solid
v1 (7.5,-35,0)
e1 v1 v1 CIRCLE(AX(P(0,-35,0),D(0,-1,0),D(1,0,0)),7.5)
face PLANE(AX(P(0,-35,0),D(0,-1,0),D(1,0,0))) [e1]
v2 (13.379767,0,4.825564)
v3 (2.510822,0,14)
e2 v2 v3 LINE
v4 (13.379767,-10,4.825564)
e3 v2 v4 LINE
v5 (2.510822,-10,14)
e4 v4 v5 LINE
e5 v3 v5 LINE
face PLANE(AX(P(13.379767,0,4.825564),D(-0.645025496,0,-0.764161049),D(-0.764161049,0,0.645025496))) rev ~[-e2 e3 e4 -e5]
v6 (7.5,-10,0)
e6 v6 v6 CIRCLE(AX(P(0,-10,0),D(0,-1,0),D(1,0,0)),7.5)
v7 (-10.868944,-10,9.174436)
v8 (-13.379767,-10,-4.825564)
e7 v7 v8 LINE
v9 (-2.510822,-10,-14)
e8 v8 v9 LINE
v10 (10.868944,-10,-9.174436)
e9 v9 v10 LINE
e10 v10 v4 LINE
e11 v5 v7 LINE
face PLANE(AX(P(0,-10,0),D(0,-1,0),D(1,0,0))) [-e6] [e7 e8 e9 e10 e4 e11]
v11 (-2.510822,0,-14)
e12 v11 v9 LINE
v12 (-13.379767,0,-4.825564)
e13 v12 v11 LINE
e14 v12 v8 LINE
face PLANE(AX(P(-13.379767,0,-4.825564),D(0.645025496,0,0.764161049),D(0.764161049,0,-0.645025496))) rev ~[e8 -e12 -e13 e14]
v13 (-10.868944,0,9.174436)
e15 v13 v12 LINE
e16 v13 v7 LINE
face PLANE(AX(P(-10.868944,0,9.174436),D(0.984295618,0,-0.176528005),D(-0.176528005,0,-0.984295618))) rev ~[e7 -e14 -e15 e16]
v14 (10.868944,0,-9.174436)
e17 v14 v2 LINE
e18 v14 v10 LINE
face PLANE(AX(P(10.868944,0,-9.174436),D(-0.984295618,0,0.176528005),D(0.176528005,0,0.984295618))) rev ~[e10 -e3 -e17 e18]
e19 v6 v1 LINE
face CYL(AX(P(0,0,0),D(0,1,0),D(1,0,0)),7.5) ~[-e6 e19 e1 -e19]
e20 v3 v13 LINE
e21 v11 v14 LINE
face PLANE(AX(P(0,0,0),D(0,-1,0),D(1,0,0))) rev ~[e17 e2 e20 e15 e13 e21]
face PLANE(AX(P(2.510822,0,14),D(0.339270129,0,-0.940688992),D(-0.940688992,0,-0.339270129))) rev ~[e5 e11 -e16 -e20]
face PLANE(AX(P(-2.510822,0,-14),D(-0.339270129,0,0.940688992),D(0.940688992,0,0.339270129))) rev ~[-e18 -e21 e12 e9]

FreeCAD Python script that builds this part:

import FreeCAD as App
import Part
import Sketcher

V = App.Vector

doc = App.newDocument("Part")
body = doc.addObject("PartDesign::Body", "Body")

sketch1 = body.newObject("Sketcher::SketchObject", "Sketch")
sketch1.AttachmentSupport = (doc.getObject("XZ_Plane"), [""])
sketch1.MapMode = "FlatFace"
sketch1.addGeometry(Part.Circle(V(0, 0, 0), V(0, 0, 1), 8), False)
sketch1.addConstraint(Sketcher.Constraint("Coincident", 0, 3, -1, 1))
sketch1.addConstraint(Sketcher.Constraint("Diameter", 0, 15.0))
pad1 = body.newObject("PartDesign::Pad", "Pad")
pad1.Profile = sketch1
pad1.Length = 35

sketch2 = body.newObject("Sketcher::SketchObject", "Sketch001")
sketch2.AttachmentSupport = (doc.getObject("XZ_Plane"), [""])
sketch2.MapMode = "FlatFace"
sketch2.addGeometry(Part.LineSegment(V(13, 5, 0), V(3, 14, 0)), False)
sketch2.addGeometry(Part.LineSegment(V(3, 14, 0), V(-11, 9, 0)), False)
sketch2.addGeometry(Part.LineSegment(V(-11, 9, 0), V(-13, -5, 0)), False)
sketch2.addGeometry(Part.LineSegment(V(-13, -5, 0), V(-3, -14, 0)), False)
sketch2.addGeometry(Part.LineSegment(V(-3, -14, 0), V(11, -9, 0)), False)
sketch2.addGeometry(Part.LineSegment(V(11, -9, 0), V(13, 5, 0)), False)
sketch2.addGeometry(Part.Circle(V(0, 0, 0), V(0, 0, 1), 8), False)
sketch2.addConstraint(Sketcher.Constraint("Coincident", 0, 2, 1, 1))
sketch2.addConstraint(Sketcher.Constraint("Coincident", 1, 2, 2, 1))
sketch2.addConstraint(Sketcher.Constraint("Coincident", 2, 2, 3, 1))
sketch2.addConstraint(Sketcher.Constraint("Coincident", 3, 2, 4, 1))
sketch2.addConstraint(Sketcher.Constraint("Coincident", 4, 2, 5, 1))
sketch2.addConstraint(Sketcher.Constraint("Coincident", 5, 2, 0, 1))
sketch2.addConstraint(Sketcher.Constraint("Coincident", 6, 3, -1, 1))
sketch2.addConstraint(Sketcher.Constraint("Symmetric", 0, 2, 3, 2, -1, 1))
sketch2.addConstraint(Sketcher.Constraint("Symmetric", 1, 2, 4, 2, -1, 1))
sketch2.addConstraint(Sketcher.Constraint("Symmetric", 2, 2, 5, 2, -1, 1))
sketch2.addConstraint(Sketcher.Constraint("Equal", 0, 1))
sketch2.addConstraint(Sketcher.Constraint("Equal", 1, 2))
sketch2.addConstraint(Sketcher.Constraint("Diameter", 6, 15.0))
sketch2.addConstraint(Sketcher.Constraint("DistanceY", -1, 1, 0, 2, 14.0))
sketch2.addConstraint(Sketcher.Constraint("DistanceY", 2, 2, 1, 2, 14.0))
sketch2.addConstraint(Sketcher.Constraint("Distance", 0, 14.22337))
sketch2.addConstraint(Sketcher.Constraint("DistanceX", 2, 2, 0, 2, 15.890589))
pad2 = body.newObject("PartDesign::Pad", "Pad001")
pad2.Profile = sketch2
pad2.Length = 10

doc.recompute()
